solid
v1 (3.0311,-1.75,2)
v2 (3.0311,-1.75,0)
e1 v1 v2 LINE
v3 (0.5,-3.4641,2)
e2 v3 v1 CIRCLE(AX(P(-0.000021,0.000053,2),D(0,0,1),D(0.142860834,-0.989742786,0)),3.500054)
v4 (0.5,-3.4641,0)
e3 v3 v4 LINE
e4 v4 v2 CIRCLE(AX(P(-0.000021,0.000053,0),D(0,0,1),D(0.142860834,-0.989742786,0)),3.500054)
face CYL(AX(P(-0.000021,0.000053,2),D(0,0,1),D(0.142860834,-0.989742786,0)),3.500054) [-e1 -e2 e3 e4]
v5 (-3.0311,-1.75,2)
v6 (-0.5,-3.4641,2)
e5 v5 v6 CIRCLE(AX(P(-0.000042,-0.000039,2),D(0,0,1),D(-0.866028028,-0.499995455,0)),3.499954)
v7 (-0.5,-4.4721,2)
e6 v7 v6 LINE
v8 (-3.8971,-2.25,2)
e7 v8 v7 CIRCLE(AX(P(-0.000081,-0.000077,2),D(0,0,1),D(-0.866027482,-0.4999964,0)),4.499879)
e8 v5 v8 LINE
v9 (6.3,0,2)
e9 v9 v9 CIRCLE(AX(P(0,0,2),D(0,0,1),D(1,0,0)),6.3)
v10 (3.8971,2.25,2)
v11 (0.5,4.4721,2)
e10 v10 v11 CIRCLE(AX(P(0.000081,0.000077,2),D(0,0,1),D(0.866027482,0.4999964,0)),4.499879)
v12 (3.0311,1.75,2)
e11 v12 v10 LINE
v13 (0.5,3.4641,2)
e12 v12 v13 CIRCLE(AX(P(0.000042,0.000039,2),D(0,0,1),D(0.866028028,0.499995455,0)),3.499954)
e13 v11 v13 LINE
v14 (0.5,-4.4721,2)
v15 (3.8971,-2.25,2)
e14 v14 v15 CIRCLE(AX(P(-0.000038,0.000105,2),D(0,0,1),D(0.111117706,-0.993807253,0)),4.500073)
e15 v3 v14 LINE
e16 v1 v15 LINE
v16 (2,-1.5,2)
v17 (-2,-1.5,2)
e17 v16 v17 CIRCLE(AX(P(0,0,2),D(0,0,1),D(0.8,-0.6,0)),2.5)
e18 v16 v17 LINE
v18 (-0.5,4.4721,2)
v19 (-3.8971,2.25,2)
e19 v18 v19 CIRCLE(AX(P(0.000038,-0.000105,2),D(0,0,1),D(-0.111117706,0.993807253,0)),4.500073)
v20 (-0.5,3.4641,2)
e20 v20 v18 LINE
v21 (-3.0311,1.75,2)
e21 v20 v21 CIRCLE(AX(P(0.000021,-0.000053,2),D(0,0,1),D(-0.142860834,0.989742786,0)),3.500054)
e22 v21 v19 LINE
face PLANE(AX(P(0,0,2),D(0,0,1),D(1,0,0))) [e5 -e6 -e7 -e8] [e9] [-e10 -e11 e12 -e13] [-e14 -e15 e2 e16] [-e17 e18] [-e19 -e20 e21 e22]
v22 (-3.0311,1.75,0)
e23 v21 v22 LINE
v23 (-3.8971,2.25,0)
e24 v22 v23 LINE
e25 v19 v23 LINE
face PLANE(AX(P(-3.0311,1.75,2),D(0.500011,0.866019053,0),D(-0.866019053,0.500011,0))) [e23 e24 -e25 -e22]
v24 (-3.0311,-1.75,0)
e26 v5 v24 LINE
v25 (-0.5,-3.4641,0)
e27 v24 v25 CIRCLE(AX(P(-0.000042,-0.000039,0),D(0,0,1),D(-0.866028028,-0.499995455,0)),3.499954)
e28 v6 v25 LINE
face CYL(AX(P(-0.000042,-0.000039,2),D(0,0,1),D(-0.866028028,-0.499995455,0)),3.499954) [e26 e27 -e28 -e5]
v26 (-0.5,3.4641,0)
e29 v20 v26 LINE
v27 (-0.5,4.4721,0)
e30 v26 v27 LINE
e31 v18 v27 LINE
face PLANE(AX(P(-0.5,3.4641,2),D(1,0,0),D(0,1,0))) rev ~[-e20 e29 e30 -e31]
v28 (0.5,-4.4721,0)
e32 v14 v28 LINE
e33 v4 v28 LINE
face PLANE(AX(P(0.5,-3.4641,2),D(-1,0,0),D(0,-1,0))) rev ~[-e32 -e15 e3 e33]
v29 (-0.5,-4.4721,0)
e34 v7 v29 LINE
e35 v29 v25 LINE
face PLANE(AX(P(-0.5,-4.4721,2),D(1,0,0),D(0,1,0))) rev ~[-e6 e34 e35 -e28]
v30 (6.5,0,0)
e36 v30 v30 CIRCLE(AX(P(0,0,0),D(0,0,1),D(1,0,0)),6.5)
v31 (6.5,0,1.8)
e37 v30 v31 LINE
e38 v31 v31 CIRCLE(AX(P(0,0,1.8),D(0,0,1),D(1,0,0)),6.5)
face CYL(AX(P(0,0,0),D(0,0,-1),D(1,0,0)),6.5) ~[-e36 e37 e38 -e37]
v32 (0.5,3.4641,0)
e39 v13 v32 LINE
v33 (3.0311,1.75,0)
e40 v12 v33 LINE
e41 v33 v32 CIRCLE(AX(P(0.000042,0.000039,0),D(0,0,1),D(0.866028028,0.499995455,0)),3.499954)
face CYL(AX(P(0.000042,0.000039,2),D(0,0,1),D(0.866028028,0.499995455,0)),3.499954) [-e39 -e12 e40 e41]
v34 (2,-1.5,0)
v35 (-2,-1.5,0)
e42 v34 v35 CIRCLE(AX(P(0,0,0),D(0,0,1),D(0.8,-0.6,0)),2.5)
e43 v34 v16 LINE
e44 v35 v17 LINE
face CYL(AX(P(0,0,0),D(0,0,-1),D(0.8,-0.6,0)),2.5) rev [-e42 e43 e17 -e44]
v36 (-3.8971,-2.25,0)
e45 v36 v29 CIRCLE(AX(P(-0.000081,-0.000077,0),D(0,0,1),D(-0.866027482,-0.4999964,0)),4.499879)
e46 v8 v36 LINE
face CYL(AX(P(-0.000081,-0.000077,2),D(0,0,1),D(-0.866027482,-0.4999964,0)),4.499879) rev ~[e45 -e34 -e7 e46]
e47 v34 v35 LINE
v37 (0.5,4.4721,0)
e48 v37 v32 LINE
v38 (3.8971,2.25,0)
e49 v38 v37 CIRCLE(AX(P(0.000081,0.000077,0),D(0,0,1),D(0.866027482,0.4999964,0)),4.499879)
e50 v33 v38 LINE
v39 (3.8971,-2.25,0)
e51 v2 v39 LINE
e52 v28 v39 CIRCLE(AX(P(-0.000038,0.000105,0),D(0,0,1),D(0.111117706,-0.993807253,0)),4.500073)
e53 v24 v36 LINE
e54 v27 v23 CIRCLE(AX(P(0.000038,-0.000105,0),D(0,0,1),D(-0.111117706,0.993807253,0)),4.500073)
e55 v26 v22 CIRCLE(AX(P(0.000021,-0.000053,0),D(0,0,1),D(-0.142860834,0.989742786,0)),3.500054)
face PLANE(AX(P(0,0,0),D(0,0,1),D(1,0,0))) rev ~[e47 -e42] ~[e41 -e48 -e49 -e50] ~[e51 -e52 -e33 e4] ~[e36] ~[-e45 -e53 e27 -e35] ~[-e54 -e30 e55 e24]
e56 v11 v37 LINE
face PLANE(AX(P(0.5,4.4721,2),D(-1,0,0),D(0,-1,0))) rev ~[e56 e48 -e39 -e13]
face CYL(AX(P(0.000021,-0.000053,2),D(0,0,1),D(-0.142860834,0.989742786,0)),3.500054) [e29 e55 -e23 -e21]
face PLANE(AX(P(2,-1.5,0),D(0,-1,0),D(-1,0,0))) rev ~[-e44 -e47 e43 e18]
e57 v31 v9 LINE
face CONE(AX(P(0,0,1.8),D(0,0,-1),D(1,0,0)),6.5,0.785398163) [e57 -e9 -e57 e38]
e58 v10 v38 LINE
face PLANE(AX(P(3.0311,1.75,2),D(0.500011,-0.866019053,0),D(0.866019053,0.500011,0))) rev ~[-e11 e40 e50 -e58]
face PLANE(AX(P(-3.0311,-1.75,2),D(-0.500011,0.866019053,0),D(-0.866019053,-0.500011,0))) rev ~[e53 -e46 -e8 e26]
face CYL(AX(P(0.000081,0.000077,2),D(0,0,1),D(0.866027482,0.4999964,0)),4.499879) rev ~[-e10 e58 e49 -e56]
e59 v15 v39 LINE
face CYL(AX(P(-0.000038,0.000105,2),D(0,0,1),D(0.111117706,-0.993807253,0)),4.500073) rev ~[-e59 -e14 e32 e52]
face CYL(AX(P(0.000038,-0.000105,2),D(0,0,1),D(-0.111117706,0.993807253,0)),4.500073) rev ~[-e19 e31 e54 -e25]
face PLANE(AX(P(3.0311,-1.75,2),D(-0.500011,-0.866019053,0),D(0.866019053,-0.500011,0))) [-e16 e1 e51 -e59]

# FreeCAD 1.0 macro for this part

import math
import FreeCAD as App
import Part
import Sketcher

V = App.Vector
Q = App.Units.Quantity


def edges_at(feature, points):
    """Names of the edges that pass closest to the given points."""
    edges = feature.Shape.Edges
    near = lambda p: min(range(len(edges)), key=lambda i: edges[i].distToShape(Part.Vertex(*p))[0])
    return sorted({f"Edge{near(p) + 1}" for p in points})

doc = App.newDocument("Part")
body = doc.addObject("PartDesign::Body", "Body")

sketch1 = body.newObject("Sketcher::SketchObject", "Sketch")
sketch1.AttachmentSupport = (doc.getObject("XY_Plane"), [""])
sketch1.MapMode = "FlatFace"
sketch1.addGeometry(Part.Circle(V(0, 0, 0), V(0, 0, 1), 6.5), False)
sketch1.addGeometry(Part.ArcOfCircle(Part.Circle(V(0, 0, 0), V(0, 0, 1), 2.5), math.radians(-37), math.radians(217)), False)
sketch1.addGeometry(Part.LineSegment(V(2, -1.5, 0), V(-2, -1.5, 0)), False)
sketch1.addConstraint(Sketcher.Constraint("Coincident", 1, 1, 2, 1))
sketch1.addConstraint(Sketcher.Constraint("Coincident", 2, 2, 1, 2))
sketch1.addConstraint(Sketcher.Constraint("Horizontal", 2))
sketch1.addConstraint(Sketcher.Constraint("Coincident", 0, 3, -1, 1))
sketch1.addConstraint(Sketcher.Constraint("Coincident", 1, 3, -1, 1))
sketch1.addConstraint(Sketcher.Constraint("Diameter", 0, 13.0))
sketch1.addConstraint(Sketcher.Constraint("Radius", 1, 2.5))
sketch1.addConstraint(Sketcher.Constraint("DistanceX", 2, 2, 2, 1, 4.0))
pad1 = body.newObject("PartDesign::Pad", "Pad")
pad1.Profile = sketch1
pad1.Length = 2

sketch2 = body.newObject("Sketcher::SketchObject", "Sketch001")
sketch2.AttachmentSupport = (doc.getObject("XY_Plane"), [""])
sketch2.MapMode = "FlatFace"
sketch2.AttachmentOffset = App.Placement(V(0, 0, 2), App.Rotation())
sketch2.addGeometry(Part.LineSegment(V(3, 1.8, 0), V(3.9, 2.2, 0)), False)
sketch2.addGeometry(Part.ArcOfCircle(Part.Circle(V(0, 0, 0), V(0, 0, 1), 4.5), math.radians(30), math.radians(84)), False)
sketch2.addGeometry(Part.LineSegment(V(0.5, 4.5, 0), V(0.5, 3.5, 0)), False)
sketch2.addGeometry(Part.ArcOfCircle(Part.Circle(V(0, 0, 0), V(0, 0, 1), 3.5), math.radians(30), math.radians(82)), False)
sketch2.addGeometry(Part.LineSegment(V(-0.5, 3.5, 0), V(-0.5, 4.5, 0)), False)
sketch2.addGeometry(Part.ArcOfCircle(Part.Circle(V(0, 0, 0), V(0, 0, 1), 4.5), math.radians(96), math.radians(150)), False)
sketch2.addGeometry(Part.LineSegment(V(-3.9, 2.2, 0), V(-3, 1.8, 0)), False)
sketch2.addGeometry(Part.ArcOfCircle(Part.Circle(V(0, 0, 0), V(0, 0, 1), 3.5), math.radians(98), math.radians(150)), False)
sketch2.addGeometry(Part.ArcOfCircle(Part.Circle(V(0, 0, 0), V(0, 0, 1), 3.5), math.radians(-82), math.radians(-30)), False)
sketch2.addGeometry(Part.LineSegment(V(0.5, -3.5, 0), V(0.5, -4.5, 0)), False)
sketch2.addGeometry(Part.ArcOfCircle(Part.Circle(V(0, 0, 0), V(0, 0, 1), 4.5), math.radians(-84), math.radians(-30)), False)
sketch2.addGeometry(Part.LineSegment(V(3.9, -2.2, 0), V(3, -1.8, 0)), False)
sketch2.addGeometry(Part.ArcOfCircle(Part.Circle(V(0, 0, 0), V(0, 0, 1), 3.5), math.radians(-150), math.radians(-98)), False)
sketch2.addGeometry(Part.LineSegment(V(-3, -1.8, 0), V(-3.9, -2.2, 0)), False)
sketch2.addGeometry(Part.ArcOfCircle(Part.Circle(V(0, 0, 0), V(0, 0, 1), 4.5), math.radians(-150), math.radians(-96)), False)
sketch2.addGeometry(Part.LineSegment(V(-0.5, -4.5, 0), V(-0.5, -3.5, 0)), False)
sketch2.addConstraint(Sketcher.Constraint("Coincident", 0, 2, 1, 1))
sketch2.addConstraint(Sketcher.Constraint("Coincident", 1, 2, 2, 1))
sketch2.addConstraint(Sketcher.Constraint("Coincident", 2, 2, 3, 2))
sketch2.addConstraint(Sketcher.Constraint("Coincident", 3, 1, 0, 1))
sketch2.addConstraint(Sketcher.Constraint("Coincident", 4, 2, 5, 1))
sketch2.addConstraint(Sketcher.Constraint("Coincident", 5, 2, 6, 1))
sketch2.addConstraint(Sketcher.Constraint("Coincident", 6, 2, 7, 2))
sketch2.addConstraint(Sketcher.Constraint("Coincident", 7, 1, 4, 1))
sketch2.addConstraint(Sketcher.Constraint("Coincident", 8, 1, 9, 1))
sketch2.addConstraint(Sketcher.Constraint("Coincident", 9, 2, 10, 1))
sketch2.addConstraint(Sketcher.Constraint("Coincident", 10, 2, 11, 1))
sketch2.addConstraint(Sketcher.Constraint("Coincident", 11, 2, 8, 2))
sketch2.addConstraint(Sketcher.Constraint("Coincident", 12, 1, 13, 1))
sketch2.addConstraint(Sketcher.Constraint("Coincident", 13, 2, 14, 1))
sketch2.addConstraint(Sketcher.Constraint("Coincident", 14, 2, 15, 1))
sketch2.addConstraint(Sketcher.Constraint("Coincident", 15, 2, 12, 2))
sketch2.addConstraint(Sketcher.Constraint("Vertical", 2))
sketch2.addConstraint(Sketcher.Constraint("Vertical", 4))
sketch2.addConstraint(Sketcher.Constraint("Vertical", 9))
sketch2.addConstraint(Sketcher.Constraint("Vertical", 15))
sketch2.addConstraint(Sketcher.Constraint("Coincident", 1, 3, -1, 1))
sketch2.addConstraint(Sketcher.Constraint("Coincident", 3, 3, -1, 1))
sketch2.addConstraint(Sketcher.Constraint("Coincident", 5, 3, -1, 1))
sketch2.addConstraint(Sketcher.Constraint("Coincident", 7, 3, -1, 1))
sketch2.addConstraint(Sketcher.Constraint("Coincident", 8, 3, -1, 1))
sketch2.addConstraint(Sketcher.Constraint("Coincident", 10, 3, -1, 1))
sketch2.addConstraint(Sketcher.Constraint("Coincident", 12, 3, -1, 1))
sketch2.addConstraint(Sketcher.Constraint("Coincident", 14, 3, -1, 1))
sketch2.addConstraint(Sketcher.Constraint("Equal", 1, 5))
sketch2.addConstraint(Sketcher.Constraint("Equal", 3, 7))
sketch2.addConstraint(Sketcher.Constraint("Equal", 7, 8))
sketch2.addConstraint(Sketcher.Constraint("Equal", 5, 10))
sketch2.addConstraint(Sketcher.Constraint("Equal", 8, 12))
sketch2.addConstraint(Sketcher.Constraint("Equal", 10, 14))
sketch2.addConstraint(Sketcher.Constraint("Parallel", 6, 11))
sketch2.addConstraint(Sketcher.Constraint("Parallel", 0, 13))
sketch2.addConstraint(Sketcher.Constraint("Horizontal", 1, 2, 4, 2))
sketch2.addConstraint(Sketcher.Constraint("Horizontal", 0, 2, 5, 2))
sketch2.addConstraint(Sketcher.Constraint("Horizontal", 3, 1, 6, 2))
sketch2.addConstraint(Sketcher.Constraint("Horizontal", 11, 2, 12, 1))
sketch2.addConstraint(Sketcher.Constraint("Horizontal", 9, 2, 14, 2))
sketch2.addConstraint(Sketcher.Constraint("Vertical", 2, 2, 8, 1))
sketch2.addConstraint(Sketcher.Constraint("Vertical", 0, 2, 10, 2))
sketch2.addConstraint(Sketcher.Constraint("Radius", 1, 4.5))
sketch2.addConstraint(Sketcher.Constraint("Radius", 3, 3.5))
sketch2.addConstraint(Sketcher.Constraint("Angle", 0, Q("30.0007 deg")))
sketch2.addConstraint(Sketcher.Constraint("DistanceX", 4, 2, 1, 2, 1.0))
sketch2.addConstraint(Sketcher.Constraint("DistanceY", 10, 2, 3, 1, 4.0))
pocket1 = body.newObject("PartDesign::Pocket", "Pocket")
pocket1.Profile = sketch2
pocket1.Type = "ThroughAll"
doc.recompute()

chamfer = body.newObject("PartDesign::Chamfer", "Chamfer")
chamfer.Base = (pocket1, edges_at(pocket1, [(-6.5, 0, 2)]))
chamfer.Size = 0.2

doc.recompute()
